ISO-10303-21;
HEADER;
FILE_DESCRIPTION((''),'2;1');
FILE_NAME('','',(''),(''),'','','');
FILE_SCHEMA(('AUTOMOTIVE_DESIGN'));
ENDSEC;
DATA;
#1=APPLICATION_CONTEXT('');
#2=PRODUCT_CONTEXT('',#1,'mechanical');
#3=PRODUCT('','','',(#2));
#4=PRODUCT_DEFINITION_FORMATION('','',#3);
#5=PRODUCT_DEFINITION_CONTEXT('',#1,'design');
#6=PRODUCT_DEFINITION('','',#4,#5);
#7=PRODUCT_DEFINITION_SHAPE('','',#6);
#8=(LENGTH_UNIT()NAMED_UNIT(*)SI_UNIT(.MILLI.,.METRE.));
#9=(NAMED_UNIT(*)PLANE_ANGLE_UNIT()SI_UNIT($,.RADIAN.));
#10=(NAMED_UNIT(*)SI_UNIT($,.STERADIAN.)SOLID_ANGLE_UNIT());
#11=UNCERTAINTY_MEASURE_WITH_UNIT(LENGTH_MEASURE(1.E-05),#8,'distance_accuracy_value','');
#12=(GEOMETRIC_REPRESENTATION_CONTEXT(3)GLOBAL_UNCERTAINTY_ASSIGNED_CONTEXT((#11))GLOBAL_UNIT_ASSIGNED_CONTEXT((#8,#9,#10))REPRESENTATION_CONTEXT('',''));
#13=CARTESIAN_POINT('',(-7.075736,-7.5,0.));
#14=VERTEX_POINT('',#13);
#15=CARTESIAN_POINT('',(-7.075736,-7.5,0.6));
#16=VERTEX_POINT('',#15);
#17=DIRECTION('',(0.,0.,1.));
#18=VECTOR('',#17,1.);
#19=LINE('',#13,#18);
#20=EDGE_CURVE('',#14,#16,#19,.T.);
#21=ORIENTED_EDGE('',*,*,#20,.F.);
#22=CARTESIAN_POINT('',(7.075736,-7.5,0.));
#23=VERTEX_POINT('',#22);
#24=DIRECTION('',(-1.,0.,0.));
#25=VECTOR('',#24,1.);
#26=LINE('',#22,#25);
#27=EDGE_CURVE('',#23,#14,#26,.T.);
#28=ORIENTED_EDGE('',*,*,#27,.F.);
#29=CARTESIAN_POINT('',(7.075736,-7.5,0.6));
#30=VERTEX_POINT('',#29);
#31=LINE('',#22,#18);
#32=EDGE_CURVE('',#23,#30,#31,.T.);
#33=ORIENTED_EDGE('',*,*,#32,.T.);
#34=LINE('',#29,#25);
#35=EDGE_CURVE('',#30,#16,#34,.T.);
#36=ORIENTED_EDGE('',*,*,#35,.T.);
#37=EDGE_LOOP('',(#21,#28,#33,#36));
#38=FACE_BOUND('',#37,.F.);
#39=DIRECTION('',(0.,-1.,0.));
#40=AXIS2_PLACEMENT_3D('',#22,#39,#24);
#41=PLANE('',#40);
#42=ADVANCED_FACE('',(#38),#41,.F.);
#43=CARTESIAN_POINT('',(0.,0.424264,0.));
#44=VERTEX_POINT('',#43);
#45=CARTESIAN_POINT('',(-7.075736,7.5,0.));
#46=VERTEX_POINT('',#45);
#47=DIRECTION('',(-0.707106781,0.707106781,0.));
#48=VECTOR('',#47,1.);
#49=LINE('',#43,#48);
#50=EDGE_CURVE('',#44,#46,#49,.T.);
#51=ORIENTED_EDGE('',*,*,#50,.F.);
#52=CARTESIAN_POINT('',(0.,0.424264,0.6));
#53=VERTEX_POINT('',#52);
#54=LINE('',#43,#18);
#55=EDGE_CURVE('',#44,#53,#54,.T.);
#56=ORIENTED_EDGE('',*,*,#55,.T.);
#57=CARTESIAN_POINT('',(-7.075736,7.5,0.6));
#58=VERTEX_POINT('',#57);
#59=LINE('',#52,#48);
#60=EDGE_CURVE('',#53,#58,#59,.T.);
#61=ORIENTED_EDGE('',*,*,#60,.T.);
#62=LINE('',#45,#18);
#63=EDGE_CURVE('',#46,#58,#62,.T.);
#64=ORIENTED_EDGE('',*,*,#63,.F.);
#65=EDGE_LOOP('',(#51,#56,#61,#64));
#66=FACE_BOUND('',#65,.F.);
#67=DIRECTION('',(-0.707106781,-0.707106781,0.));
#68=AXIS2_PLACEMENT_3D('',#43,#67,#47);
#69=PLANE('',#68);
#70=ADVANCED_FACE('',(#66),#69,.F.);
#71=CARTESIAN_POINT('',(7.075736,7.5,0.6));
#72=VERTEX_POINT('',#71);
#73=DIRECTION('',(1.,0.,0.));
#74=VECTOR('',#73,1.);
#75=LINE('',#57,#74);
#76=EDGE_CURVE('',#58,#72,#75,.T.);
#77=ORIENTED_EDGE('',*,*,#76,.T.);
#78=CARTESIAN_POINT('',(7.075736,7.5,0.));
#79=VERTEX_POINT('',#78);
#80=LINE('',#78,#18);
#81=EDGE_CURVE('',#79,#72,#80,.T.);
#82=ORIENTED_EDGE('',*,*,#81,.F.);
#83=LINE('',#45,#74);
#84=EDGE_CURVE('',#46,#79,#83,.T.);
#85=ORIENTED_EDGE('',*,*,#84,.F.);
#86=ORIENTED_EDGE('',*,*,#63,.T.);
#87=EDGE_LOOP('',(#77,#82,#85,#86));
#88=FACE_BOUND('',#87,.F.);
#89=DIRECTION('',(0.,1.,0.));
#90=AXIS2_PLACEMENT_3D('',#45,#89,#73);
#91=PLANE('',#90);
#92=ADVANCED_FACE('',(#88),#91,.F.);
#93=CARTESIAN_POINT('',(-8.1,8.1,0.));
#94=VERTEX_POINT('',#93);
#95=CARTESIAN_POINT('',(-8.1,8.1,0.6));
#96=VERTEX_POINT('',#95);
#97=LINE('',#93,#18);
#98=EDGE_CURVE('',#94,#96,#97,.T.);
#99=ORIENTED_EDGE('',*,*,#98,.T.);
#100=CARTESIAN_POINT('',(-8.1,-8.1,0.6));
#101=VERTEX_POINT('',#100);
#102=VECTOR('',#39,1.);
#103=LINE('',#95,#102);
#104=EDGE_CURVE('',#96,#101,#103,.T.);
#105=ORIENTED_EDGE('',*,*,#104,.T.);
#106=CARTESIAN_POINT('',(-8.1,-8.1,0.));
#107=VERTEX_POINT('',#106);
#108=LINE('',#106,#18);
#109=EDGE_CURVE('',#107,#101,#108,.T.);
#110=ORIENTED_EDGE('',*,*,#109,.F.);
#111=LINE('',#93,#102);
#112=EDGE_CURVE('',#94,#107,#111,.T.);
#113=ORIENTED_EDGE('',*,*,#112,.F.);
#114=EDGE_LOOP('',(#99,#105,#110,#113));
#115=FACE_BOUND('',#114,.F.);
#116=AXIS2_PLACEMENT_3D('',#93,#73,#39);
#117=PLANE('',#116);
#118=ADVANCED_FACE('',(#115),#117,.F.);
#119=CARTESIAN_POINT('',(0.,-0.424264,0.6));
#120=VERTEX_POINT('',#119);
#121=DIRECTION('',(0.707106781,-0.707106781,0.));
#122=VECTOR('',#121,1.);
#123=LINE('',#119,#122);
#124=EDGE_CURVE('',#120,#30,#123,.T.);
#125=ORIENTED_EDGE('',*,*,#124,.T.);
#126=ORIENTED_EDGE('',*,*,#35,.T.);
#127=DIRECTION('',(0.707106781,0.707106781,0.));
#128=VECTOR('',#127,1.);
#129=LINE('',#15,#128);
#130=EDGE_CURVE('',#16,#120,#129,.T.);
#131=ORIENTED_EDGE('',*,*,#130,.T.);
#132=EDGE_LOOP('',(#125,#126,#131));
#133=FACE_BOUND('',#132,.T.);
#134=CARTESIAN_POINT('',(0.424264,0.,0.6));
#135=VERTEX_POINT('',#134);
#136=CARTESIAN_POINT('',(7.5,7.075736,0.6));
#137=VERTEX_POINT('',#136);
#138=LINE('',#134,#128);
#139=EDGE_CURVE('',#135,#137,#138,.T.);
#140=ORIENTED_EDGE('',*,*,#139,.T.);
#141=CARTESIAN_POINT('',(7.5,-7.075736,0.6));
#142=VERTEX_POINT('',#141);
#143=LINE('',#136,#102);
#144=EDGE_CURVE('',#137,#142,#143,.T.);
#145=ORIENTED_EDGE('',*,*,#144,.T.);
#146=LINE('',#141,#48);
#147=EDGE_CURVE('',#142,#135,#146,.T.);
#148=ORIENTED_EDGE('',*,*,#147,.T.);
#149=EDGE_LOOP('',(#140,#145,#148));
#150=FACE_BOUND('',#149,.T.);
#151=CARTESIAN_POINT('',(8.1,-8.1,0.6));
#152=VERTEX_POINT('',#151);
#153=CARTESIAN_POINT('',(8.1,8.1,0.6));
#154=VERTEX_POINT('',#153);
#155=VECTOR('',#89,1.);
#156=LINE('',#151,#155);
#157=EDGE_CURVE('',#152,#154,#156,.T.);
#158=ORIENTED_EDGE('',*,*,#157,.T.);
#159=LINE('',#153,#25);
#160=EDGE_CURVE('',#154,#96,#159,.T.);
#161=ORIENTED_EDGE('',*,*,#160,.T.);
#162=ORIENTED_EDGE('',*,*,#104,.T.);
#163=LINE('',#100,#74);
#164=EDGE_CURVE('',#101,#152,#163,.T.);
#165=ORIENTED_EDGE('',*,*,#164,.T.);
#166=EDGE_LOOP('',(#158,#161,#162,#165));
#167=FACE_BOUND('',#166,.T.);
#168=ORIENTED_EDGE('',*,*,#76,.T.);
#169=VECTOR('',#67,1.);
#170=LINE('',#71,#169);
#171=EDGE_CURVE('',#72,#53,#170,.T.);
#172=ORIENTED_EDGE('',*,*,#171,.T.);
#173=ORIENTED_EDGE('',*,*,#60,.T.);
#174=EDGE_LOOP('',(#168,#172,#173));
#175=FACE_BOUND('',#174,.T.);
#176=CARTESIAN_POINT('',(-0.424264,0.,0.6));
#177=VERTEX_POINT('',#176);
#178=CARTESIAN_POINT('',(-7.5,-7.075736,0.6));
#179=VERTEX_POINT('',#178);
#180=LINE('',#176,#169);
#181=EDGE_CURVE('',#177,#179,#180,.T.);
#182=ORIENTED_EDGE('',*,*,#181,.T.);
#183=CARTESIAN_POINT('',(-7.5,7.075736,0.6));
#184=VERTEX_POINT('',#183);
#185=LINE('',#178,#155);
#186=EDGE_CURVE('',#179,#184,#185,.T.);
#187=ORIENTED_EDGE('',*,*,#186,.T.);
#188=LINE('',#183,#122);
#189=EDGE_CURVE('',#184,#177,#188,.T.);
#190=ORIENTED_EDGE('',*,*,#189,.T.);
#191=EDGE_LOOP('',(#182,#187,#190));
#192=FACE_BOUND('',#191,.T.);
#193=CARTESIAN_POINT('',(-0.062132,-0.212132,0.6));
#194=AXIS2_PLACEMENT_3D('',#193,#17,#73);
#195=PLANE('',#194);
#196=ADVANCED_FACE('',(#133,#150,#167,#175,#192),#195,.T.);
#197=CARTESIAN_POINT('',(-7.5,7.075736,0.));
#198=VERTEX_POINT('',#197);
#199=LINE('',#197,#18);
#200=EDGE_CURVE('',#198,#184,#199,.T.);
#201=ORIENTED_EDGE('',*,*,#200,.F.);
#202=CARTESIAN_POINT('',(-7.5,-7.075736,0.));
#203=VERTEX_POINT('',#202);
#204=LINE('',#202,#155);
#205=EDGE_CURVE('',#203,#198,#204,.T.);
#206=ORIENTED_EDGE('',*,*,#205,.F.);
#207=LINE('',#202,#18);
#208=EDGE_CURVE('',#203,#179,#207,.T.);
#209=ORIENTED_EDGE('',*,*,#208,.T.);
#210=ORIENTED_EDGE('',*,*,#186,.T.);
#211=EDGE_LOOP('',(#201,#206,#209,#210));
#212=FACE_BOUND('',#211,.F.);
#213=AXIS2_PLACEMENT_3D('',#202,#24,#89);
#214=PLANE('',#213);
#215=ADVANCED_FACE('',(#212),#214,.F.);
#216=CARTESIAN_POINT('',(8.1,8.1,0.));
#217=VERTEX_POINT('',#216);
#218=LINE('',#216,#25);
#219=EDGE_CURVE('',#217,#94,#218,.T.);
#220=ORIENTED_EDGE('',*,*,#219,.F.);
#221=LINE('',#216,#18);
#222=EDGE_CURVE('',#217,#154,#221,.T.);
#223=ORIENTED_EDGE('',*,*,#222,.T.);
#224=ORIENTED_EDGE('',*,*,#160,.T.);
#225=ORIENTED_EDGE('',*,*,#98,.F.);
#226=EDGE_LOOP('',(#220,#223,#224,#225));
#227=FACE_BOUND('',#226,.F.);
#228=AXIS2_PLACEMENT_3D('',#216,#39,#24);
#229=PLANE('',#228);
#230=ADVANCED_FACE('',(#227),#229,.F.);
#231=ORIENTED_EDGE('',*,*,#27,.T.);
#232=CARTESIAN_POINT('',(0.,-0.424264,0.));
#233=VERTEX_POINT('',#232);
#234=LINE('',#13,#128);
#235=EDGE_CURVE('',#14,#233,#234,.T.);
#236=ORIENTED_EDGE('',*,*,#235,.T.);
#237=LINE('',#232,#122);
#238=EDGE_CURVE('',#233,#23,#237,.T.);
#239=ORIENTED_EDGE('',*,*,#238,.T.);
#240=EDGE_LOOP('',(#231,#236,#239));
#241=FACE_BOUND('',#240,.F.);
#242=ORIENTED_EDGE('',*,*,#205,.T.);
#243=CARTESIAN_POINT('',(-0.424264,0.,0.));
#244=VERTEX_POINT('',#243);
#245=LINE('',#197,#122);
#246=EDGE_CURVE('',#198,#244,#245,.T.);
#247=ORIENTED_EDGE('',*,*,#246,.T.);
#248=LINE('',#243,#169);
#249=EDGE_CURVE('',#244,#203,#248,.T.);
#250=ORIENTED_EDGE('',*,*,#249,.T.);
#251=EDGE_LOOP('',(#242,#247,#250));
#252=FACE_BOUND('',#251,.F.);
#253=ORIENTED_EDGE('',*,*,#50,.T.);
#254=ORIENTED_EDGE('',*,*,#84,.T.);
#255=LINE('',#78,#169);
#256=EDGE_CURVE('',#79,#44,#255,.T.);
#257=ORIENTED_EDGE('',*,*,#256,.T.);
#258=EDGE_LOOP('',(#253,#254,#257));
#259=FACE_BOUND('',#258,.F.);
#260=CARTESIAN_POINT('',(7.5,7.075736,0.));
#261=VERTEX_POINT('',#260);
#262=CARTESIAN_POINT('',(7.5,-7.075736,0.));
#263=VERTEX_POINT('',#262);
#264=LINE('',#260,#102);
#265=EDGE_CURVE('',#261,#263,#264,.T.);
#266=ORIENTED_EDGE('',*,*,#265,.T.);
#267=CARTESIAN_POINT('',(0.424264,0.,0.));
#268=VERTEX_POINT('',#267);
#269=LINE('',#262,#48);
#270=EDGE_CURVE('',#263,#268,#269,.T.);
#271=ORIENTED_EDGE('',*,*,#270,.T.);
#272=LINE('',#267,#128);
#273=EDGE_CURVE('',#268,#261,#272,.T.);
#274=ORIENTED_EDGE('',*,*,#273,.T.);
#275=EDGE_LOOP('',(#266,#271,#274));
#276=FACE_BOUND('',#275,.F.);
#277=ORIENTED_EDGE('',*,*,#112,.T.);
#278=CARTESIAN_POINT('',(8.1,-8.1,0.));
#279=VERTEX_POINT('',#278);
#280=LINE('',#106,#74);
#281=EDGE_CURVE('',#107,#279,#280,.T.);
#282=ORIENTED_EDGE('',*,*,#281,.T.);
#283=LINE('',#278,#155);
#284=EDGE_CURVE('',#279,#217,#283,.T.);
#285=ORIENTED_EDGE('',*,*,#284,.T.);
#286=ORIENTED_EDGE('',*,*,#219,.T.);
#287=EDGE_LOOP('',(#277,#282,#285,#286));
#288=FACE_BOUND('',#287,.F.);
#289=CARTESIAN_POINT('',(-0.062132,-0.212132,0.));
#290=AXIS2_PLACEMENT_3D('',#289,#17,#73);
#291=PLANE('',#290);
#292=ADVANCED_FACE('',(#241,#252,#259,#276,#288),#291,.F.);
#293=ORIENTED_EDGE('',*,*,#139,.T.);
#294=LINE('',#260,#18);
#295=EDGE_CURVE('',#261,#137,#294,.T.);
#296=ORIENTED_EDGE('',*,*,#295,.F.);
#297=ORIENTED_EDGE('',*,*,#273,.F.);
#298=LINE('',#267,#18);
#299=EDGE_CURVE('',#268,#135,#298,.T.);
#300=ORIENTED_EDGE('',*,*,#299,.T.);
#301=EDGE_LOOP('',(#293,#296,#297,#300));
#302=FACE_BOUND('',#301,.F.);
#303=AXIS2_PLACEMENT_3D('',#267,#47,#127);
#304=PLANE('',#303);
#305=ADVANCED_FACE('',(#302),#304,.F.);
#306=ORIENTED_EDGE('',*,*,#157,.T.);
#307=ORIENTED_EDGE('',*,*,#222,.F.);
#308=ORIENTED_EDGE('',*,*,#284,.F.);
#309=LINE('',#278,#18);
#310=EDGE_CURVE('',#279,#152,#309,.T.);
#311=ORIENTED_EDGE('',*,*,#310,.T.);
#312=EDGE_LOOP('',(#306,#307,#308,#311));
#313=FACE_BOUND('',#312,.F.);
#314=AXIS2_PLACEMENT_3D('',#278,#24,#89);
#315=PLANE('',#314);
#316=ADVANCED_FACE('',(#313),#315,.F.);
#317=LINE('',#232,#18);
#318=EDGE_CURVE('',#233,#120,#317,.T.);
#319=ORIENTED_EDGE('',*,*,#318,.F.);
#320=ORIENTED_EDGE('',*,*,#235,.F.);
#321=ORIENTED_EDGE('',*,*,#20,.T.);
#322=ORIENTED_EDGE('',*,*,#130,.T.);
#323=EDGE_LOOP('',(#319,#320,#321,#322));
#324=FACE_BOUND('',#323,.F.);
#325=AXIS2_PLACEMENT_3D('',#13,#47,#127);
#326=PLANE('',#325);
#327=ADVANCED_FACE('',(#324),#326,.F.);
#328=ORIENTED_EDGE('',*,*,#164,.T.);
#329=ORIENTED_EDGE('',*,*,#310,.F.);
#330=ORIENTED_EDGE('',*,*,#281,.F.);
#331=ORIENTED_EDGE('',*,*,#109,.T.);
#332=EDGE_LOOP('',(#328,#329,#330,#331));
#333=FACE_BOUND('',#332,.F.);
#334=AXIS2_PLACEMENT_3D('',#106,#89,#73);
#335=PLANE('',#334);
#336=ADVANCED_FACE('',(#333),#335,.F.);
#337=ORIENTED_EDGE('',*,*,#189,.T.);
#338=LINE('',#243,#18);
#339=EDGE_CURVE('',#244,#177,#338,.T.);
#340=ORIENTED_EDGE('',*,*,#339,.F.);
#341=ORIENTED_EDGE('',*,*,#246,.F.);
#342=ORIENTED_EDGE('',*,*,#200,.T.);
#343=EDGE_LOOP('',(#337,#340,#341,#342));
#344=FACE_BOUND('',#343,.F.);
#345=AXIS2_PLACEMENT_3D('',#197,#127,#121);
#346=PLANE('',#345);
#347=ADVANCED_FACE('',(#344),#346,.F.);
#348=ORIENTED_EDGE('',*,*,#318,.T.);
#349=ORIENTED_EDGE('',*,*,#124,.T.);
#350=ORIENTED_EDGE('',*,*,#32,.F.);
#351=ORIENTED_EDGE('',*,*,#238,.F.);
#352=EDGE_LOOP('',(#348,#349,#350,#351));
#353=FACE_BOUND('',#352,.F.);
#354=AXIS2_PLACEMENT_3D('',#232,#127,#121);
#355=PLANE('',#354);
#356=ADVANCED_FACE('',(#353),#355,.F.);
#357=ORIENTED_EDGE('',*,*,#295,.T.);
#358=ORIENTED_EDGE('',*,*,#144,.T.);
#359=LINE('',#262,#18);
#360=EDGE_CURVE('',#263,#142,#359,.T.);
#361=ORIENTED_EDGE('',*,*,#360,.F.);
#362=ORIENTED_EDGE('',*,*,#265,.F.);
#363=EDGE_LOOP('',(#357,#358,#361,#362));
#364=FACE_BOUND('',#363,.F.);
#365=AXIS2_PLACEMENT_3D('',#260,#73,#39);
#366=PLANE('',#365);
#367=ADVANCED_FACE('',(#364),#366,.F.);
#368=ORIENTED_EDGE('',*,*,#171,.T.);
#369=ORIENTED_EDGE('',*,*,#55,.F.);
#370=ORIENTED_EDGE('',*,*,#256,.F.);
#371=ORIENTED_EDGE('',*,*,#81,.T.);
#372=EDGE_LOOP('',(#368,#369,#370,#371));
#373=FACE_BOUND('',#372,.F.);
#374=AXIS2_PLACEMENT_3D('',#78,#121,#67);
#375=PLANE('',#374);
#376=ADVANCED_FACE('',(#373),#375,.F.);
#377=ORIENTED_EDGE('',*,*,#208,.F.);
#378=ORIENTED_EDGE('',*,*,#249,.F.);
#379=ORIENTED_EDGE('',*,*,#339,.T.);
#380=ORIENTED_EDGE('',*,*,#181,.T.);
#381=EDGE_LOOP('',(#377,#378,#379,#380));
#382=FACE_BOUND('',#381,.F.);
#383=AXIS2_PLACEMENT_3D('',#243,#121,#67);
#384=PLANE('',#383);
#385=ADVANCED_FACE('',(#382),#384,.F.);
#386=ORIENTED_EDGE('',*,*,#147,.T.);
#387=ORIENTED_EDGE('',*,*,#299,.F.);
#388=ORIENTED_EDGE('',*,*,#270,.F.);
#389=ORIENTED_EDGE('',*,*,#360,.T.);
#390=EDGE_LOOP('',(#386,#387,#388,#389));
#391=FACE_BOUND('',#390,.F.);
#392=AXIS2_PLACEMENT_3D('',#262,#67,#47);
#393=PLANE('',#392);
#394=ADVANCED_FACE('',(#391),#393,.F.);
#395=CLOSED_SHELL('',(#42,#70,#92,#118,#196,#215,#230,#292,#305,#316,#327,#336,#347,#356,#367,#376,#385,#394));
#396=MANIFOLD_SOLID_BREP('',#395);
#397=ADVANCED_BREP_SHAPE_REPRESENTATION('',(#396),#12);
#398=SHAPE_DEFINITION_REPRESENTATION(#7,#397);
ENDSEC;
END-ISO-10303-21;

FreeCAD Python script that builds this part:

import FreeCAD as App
import Part
import Sketcher
from FreeCAD import Vector

doc = App.newDocument("Part")
params = doc.addObject("Spreadsheet::Sheet", "Params")
for row, (alias, value) in enumerate([
    ("sketch1_width", "16.2 mm"),
    ("pad1_length", "0.6 mm"),
], start=1):
    params.set(f"A{row}", alias)
    params.set(f"B{row}", "=" + value)
    params.setAlias(f"B{row}", alias)

body = doc.addObject("PartDesign::Body", "Body")

sketch1 = body.newObject("Sketcher::SketchObject", "Sketch")
sketch1.AttachmentSupport = (doc.getObject("XY_Plane"), [""])
sketch1.MapMode = "FlatFace"
sketch1.addGeometry([
    Part.LineSegment(Vector(-8.1, 8.1, 0), Vector(-8.1, -8.1, 0)),
    Part.LineSegment(Vector(-8.1, -8.1, 0), Vector(8.1, -8.1, 0)),
    Part.LineSegment(Vector(8.1, -8.1, 0), Vector(8.1, 8.1, 0)),
    Part.LineSegment(Vector(8.1, 8.1, 0), Vector(-8.1, 8.1, 0)),
    Part.LineSegment(Vector(-7.075736, -7.5, 0), Vector(0, -0.424264, 0)),
    Part.LineSegment(Vector(0, -0.424264, 0), Vector(7.075736, -7.5, 0)),
    Part.LineSegment(Vector(7.075736, -7.5, 0), Vector(-7.075736, -7.5, 0)),
    Part.LineSegment(Vector(-0.424264, 0, 0), Vector(-7.5, -7.075736, 0)),
    Part.LineSegment(Vector(-7.5, -7.075736, 0), Vector(-7.5, 7.075736, 0)),
    Part.LineSegment(Vector(-7.5, 7.075736, 0), Vector(-0.424264, 0, 0)),
    Part.LineSegment(Vector(7.5, 7.075736, 0), Vector(7.5, -7.075736, 0)),
    Part.LineSegment(Vector(7.5, -7.075736, 0), Vector(0.424264, 0, 0)),
    Part.LineSegment(Vector(0.424264, 0, 0), Vector(7.5, 7.075736, 0)),
    Part.LineSegment(Vector(7.075736, 7.5, 0), Vector(0, 0.424264, 0)),
    Part.LineSegment(Vector(0, 0.424264, 0), Vector(-7.075736, 7.5, 0)),
    Part.LineSegment(Vector(-7.075736, 7.5, 0), Vector(7.075736, 7.5, 0)),
], False)
sketch1.addConstraint([
    Sketcher.Constraint("Coincident", 0, 2, 1, 1),
    Sketcher.Constraint("Coincident", 1, 2, 2, 1),
    Sketcher.Constraint("Coincident", 2, 2, 3, 1),
    Sketcher.Constraint("Coincident", 3, 2, 0, 1),
    Sketcher.Constraint("Coincident", 4, 2, 5, 1),
    Sketcher.Constraint("Coincident", 5, 2, 6, 1),
    Sketcher.Constraint("Coincident", 6, 2, 4, 1),
    Sketcher.Constraint("Coincident", 7, 2, 8, 1),
    Sketcher.Constraint("Coincident", 8, 2, 9, 1),
    Sketcher.Constraint("Coincident", 9, 2, 7, 1),
    Sketcher.Constraint("Coincident", 10, 2, 11, 1),
    Sketcher.Constraint("Coincident", 11, 2, 12, 1),
    Sketcher.Constraint("Coincident", 12, 2, 10, 1),
    Sketcher.Constraint("Coincident", 13, 2, 14, 1),
    Sketcher.Constraint("Coincident", 14, 2, 15, 1),
    Sketcher.Constraint("Coincident", 15, 2, 13, 1),
    Sketcher.Constraint("Vertical", 0),
    Sketcher.Constraint("Horizontal", 1),
    Sketcher.Constraint("Vertical", 2),
    Sketcher.Constraint("Horizontal", 3),
    Sketcher.Constraint("Horizontal", 6),
    Sketcher.Constraint("Vertical", 8),
    Sketcher.Constraint("Vertical", 10),
    Sketcher.Constraint("Horizontal", 15),
    Sketcher.Constraint("Symmetric", 0, 2, 2, 2, -1, 1),
    Sketcher.Constraint("Symmetric", 8, 2, 10, 2, -1, 1),
    Sketcher.Constraint("Symmetric", 9, 2, 11, 2, -1, 1),
    Sketcher.Constraint("Symmetric", 4, 2, 13, 2, -1, 1),
    Sketcher.Constraint("Symmetric", 5, 2, 14, 2, -1, 1),
    Sketcher.Constraint("PointOnObject", 4, 2, -2),
    Sketcher.Constraint("PointOnObject", 9, 2, -1),
    Sketcher.Constraint("Perpendicular", 4, 5),
    Sketcher.Constraint("Perpendicular", 5, 7),
    Sketcher.Constraint("Perpendicular", 7, 9),
    Sketcher.Constraint("Perpendicular", 11, 12),
    Sketcher.Constraint("Parallel", 12, 13),
    Sketcher.Constraint("Horizontal", 7, 2, 10, 2),
    Sketcher.Constraint("Equal", 3, 0),
    Sketcher.Constraint("Equal", 15, 8),
    Sketcher.Constraint("DistanceX", 1, 1, 1, 2, 16.2),
    Sketcher.Constraint("DistanceY", 5, 2, -1, 1, 7.5),
    Sketcher.Constraint("DistanceX", 7, 2, -1, 1, 7.5),
    Sketcher.Constraint("Distance", 4, 10.006602),
])
sketch1.setExpression("Constraints[39]", "Params.sketch1_width")
pad1 = body.newObject("PartDesign::Pad", "Pad")
pad1.Profile = sketch1
pad1.setExpression("Length", "Params.pad1_length")

doc.recompute()
